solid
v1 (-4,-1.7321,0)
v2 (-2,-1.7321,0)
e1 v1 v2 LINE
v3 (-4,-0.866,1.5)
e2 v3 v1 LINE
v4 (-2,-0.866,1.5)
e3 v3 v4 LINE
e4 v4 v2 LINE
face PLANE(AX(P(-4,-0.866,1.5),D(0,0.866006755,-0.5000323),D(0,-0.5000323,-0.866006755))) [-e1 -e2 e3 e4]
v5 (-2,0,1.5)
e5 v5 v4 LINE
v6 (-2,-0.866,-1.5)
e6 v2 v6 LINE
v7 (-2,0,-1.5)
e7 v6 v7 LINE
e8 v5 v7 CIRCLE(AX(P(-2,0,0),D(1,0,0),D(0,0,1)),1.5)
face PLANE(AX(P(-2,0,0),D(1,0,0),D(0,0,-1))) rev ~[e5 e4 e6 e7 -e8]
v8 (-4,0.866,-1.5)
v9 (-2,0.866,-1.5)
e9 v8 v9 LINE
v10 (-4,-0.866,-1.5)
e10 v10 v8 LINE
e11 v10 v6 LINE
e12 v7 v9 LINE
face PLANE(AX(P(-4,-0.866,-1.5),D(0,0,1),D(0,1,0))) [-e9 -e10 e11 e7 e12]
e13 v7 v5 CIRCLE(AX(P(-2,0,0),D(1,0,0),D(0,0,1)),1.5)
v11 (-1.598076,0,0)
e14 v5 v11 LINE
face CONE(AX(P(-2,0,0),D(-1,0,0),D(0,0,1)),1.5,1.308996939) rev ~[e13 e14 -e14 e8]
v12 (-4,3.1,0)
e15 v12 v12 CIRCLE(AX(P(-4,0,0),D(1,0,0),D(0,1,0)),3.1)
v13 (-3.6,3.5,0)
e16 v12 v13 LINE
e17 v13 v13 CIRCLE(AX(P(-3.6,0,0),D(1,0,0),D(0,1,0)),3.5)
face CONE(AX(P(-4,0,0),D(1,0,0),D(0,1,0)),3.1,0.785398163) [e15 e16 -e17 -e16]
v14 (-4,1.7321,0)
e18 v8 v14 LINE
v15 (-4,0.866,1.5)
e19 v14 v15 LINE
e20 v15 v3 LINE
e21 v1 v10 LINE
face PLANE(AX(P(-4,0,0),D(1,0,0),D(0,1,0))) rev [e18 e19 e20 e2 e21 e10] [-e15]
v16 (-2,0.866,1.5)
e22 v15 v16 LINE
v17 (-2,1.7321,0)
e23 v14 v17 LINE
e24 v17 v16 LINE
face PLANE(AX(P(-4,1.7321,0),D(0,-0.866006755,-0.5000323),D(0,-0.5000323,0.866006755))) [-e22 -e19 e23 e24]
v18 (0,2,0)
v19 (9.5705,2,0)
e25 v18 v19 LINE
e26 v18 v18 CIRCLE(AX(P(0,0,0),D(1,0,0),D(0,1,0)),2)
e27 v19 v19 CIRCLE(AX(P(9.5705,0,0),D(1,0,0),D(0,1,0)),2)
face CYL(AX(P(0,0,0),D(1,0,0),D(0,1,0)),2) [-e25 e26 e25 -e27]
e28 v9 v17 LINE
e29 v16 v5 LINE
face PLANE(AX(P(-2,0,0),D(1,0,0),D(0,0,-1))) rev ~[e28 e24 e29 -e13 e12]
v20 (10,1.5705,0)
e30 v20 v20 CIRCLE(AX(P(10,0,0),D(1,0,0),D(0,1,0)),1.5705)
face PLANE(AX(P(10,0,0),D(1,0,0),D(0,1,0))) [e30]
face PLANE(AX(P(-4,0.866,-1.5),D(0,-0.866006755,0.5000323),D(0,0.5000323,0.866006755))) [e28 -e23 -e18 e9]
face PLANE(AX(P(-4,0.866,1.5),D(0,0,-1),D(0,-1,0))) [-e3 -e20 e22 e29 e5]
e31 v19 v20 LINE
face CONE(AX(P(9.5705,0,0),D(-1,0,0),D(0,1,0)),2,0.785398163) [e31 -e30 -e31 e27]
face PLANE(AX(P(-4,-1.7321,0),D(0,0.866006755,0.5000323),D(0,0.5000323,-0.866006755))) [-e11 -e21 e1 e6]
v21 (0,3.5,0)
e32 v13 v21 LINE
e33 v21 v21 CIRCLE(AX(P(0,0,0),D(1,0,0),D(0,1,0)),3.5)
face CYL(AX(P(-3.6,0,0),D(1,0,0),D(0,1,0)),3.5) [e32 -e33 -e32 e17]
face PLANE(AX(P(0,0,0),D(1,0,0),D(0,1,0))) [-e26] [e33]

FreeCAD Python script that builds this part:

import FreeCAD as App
import Part
import Sketcher
Q = App.Units.Quantity


def add_polygon(sketch, points):
    """Adds a closed chain of lines whose ends are joined by coincident constraints."""
    first, n = sketch.GeometryCount, len(points)
    for a, b in zip(points, points[1:] + points[:1]):
        sketch.addGeometry(Part.LineSegment(App.Vector(*a, 0), App.Vector(*b, 0)), False)
    for i in range(n):
        sketch.addConstraint(Sketcher.Constraint("Coincident", first + i, 2, first + (i + 1) % n, 1))

doc = App.newDocument("Part")
body = doc.addObject("PartDesign::Body", "Body")

sketch1 = doc.addObject("Sketcher::SketchObject", "Sketch")
body.addObject(sketch1)
sketch1.AttachmentSupport = (doc.XY_Plane, [""])
sketch1.MapMode = "FlatFace"
add_polygon(sketch1, [(-4, 0), (10, 0), (10, 1.5705), (9.5705, 2), (0, 2), (0, 3.5), (-3.6, 3.5), (-4, 3.1)])
sketch1.addConstraint([
    Sketcher.Constraint("Horizontal", 0),
    Sketcher.Constraint("Vertical", 1),
    Sketcher.Constraint("Horizontal", 3),
    Sketcher.Constraint("Vertical", 4),
    Sketcher.Constraint("Horizontal", 5),
    Sketcher.Constraint("Vertical", 7),
    Sketcher.Constraint("PointOnObject", 0, 2, -1),
    Sketcher.Constraint("PointOnObject", 3, 2, -2),
    Sketcher.Constraint("Perpendicular", 2, 6),
    Sketcher.Constraint("DistanceX", 0, 1, 0, 2, Q("14 mm")),
    Sketcher.Constraint("Angle", 2, Q("135 deg")),
    Sketcher.Constraint("DistanceX", 5, 2, 5, 1, Q("3.6 mm")),
    Sketcher.Constraint("DistanceY", 4, 1, 4, 2, Q("1.5 mm")),
    Sketcher.Constraint("DistanceY", 7, 2, 7, 1, Q("3.1 mm")),
    Sketcher.Constraint("DistanceX", -1, 1, 0, 2, Q("10 mm")),
    Sketcher.Constraint("DistanceX", 3, 2, 3, 1, Q("9.5705 mm")),
])
revolution = doc.addObject("PartDesign::Revolution", "Revolution")
body.addObject(revolution)
revolution.Profile = sketch1
revolution.ReferenceAxis = (sketch1, ["H_Axis"])
revolution.Angle = 360

sketch2 = doc.addObject("Sketcher::SketchObject", "Sketch001")
body.addObject(sketch2)
sketch2.AttachmentSupport = (doc.YZ_Plane, [""])
sketch2.MapMode = "FlatFace"
sketch2.AttachmentOffset = App.Placement(App.Vector(0, 0, -4), App.Rotation())
sketch2.addGeometry(Part.Circle(App.Vector(0, 0, 0), App.Vector(0, 0, 1), 1.5), False)
sketch2.addConstraint([
    Sketcher.Constraint("Coincident", 0, 3, -1, 1),
    Sketcher.Constraint("Diameter", 0, Q("3 mm")),
])
doc.recompute()
hole = doc.addObject("PartDesign::Hole", "Hole")
body.addObject(hole)
hole.Profile = sketch2
hole.ThreadType = "None"
hole.Diameter = 3
hole.DepthType = "Dimension"
hole.Depth = 2
hole.DrillPoint = "Angled"
hole.DrillPointAngle = 150
hole.Reversed = True

sketch3 = doc.addObject("Sketcher::SketchObject", "Sketch002")
body.addObject(sketch3)
sketch3.AttachmentSupport = (doc.YZ_Plane, [""])
sketch3.MapMode = "FlatFace"
sketch3.AttachmentOffset = App.Placement(App.Vector(0, 0, -4), App.Rotation())
add_polygon(sketch3, [(0.866, 1.5), (-0.866, 1.5), (-1.7321, 0), (-0.866, -1.5), (0.866, -1.5), (1.7321, 0)])
sketch3.addConstraint([
    Sketcher.Constraint("Horizontal", 0),
    Sketcher.Constraint("Horizontal", 3),
    Sketcher.Constraint("Symmetric", 0, 2, 3, 2, -1, 1),
    Sketcher.Constraint("Symmetric", 1, 2, 4, 2, -1, 1),
    Sketcher.Constraint("PointOnObject", 1, 2, -1),
    Sketcher.Constraint("Parallel", 2, 5),
    Sketcher.Constraint("Vertical", 0, 2, 2, 2),
    Sketcher.Constraint("DistanceY", 2, 2, 0, 2, Q("3 mm")),
    Sketcher.Constraint("DistanceX", 0, 2, 0, 1, Q("1.732 mm")),
    Sketcher.Constraint("Distance", 1, Q("1.732 mm")),
])
pocket1 = doc.addObject("PartDesign::Pocket", "Pocket")
body.addObject(pocket1)
pocket1.Profile = sketch3
pocket1.Length = 2
pocket1.Reversed = True

doc.recompute()
